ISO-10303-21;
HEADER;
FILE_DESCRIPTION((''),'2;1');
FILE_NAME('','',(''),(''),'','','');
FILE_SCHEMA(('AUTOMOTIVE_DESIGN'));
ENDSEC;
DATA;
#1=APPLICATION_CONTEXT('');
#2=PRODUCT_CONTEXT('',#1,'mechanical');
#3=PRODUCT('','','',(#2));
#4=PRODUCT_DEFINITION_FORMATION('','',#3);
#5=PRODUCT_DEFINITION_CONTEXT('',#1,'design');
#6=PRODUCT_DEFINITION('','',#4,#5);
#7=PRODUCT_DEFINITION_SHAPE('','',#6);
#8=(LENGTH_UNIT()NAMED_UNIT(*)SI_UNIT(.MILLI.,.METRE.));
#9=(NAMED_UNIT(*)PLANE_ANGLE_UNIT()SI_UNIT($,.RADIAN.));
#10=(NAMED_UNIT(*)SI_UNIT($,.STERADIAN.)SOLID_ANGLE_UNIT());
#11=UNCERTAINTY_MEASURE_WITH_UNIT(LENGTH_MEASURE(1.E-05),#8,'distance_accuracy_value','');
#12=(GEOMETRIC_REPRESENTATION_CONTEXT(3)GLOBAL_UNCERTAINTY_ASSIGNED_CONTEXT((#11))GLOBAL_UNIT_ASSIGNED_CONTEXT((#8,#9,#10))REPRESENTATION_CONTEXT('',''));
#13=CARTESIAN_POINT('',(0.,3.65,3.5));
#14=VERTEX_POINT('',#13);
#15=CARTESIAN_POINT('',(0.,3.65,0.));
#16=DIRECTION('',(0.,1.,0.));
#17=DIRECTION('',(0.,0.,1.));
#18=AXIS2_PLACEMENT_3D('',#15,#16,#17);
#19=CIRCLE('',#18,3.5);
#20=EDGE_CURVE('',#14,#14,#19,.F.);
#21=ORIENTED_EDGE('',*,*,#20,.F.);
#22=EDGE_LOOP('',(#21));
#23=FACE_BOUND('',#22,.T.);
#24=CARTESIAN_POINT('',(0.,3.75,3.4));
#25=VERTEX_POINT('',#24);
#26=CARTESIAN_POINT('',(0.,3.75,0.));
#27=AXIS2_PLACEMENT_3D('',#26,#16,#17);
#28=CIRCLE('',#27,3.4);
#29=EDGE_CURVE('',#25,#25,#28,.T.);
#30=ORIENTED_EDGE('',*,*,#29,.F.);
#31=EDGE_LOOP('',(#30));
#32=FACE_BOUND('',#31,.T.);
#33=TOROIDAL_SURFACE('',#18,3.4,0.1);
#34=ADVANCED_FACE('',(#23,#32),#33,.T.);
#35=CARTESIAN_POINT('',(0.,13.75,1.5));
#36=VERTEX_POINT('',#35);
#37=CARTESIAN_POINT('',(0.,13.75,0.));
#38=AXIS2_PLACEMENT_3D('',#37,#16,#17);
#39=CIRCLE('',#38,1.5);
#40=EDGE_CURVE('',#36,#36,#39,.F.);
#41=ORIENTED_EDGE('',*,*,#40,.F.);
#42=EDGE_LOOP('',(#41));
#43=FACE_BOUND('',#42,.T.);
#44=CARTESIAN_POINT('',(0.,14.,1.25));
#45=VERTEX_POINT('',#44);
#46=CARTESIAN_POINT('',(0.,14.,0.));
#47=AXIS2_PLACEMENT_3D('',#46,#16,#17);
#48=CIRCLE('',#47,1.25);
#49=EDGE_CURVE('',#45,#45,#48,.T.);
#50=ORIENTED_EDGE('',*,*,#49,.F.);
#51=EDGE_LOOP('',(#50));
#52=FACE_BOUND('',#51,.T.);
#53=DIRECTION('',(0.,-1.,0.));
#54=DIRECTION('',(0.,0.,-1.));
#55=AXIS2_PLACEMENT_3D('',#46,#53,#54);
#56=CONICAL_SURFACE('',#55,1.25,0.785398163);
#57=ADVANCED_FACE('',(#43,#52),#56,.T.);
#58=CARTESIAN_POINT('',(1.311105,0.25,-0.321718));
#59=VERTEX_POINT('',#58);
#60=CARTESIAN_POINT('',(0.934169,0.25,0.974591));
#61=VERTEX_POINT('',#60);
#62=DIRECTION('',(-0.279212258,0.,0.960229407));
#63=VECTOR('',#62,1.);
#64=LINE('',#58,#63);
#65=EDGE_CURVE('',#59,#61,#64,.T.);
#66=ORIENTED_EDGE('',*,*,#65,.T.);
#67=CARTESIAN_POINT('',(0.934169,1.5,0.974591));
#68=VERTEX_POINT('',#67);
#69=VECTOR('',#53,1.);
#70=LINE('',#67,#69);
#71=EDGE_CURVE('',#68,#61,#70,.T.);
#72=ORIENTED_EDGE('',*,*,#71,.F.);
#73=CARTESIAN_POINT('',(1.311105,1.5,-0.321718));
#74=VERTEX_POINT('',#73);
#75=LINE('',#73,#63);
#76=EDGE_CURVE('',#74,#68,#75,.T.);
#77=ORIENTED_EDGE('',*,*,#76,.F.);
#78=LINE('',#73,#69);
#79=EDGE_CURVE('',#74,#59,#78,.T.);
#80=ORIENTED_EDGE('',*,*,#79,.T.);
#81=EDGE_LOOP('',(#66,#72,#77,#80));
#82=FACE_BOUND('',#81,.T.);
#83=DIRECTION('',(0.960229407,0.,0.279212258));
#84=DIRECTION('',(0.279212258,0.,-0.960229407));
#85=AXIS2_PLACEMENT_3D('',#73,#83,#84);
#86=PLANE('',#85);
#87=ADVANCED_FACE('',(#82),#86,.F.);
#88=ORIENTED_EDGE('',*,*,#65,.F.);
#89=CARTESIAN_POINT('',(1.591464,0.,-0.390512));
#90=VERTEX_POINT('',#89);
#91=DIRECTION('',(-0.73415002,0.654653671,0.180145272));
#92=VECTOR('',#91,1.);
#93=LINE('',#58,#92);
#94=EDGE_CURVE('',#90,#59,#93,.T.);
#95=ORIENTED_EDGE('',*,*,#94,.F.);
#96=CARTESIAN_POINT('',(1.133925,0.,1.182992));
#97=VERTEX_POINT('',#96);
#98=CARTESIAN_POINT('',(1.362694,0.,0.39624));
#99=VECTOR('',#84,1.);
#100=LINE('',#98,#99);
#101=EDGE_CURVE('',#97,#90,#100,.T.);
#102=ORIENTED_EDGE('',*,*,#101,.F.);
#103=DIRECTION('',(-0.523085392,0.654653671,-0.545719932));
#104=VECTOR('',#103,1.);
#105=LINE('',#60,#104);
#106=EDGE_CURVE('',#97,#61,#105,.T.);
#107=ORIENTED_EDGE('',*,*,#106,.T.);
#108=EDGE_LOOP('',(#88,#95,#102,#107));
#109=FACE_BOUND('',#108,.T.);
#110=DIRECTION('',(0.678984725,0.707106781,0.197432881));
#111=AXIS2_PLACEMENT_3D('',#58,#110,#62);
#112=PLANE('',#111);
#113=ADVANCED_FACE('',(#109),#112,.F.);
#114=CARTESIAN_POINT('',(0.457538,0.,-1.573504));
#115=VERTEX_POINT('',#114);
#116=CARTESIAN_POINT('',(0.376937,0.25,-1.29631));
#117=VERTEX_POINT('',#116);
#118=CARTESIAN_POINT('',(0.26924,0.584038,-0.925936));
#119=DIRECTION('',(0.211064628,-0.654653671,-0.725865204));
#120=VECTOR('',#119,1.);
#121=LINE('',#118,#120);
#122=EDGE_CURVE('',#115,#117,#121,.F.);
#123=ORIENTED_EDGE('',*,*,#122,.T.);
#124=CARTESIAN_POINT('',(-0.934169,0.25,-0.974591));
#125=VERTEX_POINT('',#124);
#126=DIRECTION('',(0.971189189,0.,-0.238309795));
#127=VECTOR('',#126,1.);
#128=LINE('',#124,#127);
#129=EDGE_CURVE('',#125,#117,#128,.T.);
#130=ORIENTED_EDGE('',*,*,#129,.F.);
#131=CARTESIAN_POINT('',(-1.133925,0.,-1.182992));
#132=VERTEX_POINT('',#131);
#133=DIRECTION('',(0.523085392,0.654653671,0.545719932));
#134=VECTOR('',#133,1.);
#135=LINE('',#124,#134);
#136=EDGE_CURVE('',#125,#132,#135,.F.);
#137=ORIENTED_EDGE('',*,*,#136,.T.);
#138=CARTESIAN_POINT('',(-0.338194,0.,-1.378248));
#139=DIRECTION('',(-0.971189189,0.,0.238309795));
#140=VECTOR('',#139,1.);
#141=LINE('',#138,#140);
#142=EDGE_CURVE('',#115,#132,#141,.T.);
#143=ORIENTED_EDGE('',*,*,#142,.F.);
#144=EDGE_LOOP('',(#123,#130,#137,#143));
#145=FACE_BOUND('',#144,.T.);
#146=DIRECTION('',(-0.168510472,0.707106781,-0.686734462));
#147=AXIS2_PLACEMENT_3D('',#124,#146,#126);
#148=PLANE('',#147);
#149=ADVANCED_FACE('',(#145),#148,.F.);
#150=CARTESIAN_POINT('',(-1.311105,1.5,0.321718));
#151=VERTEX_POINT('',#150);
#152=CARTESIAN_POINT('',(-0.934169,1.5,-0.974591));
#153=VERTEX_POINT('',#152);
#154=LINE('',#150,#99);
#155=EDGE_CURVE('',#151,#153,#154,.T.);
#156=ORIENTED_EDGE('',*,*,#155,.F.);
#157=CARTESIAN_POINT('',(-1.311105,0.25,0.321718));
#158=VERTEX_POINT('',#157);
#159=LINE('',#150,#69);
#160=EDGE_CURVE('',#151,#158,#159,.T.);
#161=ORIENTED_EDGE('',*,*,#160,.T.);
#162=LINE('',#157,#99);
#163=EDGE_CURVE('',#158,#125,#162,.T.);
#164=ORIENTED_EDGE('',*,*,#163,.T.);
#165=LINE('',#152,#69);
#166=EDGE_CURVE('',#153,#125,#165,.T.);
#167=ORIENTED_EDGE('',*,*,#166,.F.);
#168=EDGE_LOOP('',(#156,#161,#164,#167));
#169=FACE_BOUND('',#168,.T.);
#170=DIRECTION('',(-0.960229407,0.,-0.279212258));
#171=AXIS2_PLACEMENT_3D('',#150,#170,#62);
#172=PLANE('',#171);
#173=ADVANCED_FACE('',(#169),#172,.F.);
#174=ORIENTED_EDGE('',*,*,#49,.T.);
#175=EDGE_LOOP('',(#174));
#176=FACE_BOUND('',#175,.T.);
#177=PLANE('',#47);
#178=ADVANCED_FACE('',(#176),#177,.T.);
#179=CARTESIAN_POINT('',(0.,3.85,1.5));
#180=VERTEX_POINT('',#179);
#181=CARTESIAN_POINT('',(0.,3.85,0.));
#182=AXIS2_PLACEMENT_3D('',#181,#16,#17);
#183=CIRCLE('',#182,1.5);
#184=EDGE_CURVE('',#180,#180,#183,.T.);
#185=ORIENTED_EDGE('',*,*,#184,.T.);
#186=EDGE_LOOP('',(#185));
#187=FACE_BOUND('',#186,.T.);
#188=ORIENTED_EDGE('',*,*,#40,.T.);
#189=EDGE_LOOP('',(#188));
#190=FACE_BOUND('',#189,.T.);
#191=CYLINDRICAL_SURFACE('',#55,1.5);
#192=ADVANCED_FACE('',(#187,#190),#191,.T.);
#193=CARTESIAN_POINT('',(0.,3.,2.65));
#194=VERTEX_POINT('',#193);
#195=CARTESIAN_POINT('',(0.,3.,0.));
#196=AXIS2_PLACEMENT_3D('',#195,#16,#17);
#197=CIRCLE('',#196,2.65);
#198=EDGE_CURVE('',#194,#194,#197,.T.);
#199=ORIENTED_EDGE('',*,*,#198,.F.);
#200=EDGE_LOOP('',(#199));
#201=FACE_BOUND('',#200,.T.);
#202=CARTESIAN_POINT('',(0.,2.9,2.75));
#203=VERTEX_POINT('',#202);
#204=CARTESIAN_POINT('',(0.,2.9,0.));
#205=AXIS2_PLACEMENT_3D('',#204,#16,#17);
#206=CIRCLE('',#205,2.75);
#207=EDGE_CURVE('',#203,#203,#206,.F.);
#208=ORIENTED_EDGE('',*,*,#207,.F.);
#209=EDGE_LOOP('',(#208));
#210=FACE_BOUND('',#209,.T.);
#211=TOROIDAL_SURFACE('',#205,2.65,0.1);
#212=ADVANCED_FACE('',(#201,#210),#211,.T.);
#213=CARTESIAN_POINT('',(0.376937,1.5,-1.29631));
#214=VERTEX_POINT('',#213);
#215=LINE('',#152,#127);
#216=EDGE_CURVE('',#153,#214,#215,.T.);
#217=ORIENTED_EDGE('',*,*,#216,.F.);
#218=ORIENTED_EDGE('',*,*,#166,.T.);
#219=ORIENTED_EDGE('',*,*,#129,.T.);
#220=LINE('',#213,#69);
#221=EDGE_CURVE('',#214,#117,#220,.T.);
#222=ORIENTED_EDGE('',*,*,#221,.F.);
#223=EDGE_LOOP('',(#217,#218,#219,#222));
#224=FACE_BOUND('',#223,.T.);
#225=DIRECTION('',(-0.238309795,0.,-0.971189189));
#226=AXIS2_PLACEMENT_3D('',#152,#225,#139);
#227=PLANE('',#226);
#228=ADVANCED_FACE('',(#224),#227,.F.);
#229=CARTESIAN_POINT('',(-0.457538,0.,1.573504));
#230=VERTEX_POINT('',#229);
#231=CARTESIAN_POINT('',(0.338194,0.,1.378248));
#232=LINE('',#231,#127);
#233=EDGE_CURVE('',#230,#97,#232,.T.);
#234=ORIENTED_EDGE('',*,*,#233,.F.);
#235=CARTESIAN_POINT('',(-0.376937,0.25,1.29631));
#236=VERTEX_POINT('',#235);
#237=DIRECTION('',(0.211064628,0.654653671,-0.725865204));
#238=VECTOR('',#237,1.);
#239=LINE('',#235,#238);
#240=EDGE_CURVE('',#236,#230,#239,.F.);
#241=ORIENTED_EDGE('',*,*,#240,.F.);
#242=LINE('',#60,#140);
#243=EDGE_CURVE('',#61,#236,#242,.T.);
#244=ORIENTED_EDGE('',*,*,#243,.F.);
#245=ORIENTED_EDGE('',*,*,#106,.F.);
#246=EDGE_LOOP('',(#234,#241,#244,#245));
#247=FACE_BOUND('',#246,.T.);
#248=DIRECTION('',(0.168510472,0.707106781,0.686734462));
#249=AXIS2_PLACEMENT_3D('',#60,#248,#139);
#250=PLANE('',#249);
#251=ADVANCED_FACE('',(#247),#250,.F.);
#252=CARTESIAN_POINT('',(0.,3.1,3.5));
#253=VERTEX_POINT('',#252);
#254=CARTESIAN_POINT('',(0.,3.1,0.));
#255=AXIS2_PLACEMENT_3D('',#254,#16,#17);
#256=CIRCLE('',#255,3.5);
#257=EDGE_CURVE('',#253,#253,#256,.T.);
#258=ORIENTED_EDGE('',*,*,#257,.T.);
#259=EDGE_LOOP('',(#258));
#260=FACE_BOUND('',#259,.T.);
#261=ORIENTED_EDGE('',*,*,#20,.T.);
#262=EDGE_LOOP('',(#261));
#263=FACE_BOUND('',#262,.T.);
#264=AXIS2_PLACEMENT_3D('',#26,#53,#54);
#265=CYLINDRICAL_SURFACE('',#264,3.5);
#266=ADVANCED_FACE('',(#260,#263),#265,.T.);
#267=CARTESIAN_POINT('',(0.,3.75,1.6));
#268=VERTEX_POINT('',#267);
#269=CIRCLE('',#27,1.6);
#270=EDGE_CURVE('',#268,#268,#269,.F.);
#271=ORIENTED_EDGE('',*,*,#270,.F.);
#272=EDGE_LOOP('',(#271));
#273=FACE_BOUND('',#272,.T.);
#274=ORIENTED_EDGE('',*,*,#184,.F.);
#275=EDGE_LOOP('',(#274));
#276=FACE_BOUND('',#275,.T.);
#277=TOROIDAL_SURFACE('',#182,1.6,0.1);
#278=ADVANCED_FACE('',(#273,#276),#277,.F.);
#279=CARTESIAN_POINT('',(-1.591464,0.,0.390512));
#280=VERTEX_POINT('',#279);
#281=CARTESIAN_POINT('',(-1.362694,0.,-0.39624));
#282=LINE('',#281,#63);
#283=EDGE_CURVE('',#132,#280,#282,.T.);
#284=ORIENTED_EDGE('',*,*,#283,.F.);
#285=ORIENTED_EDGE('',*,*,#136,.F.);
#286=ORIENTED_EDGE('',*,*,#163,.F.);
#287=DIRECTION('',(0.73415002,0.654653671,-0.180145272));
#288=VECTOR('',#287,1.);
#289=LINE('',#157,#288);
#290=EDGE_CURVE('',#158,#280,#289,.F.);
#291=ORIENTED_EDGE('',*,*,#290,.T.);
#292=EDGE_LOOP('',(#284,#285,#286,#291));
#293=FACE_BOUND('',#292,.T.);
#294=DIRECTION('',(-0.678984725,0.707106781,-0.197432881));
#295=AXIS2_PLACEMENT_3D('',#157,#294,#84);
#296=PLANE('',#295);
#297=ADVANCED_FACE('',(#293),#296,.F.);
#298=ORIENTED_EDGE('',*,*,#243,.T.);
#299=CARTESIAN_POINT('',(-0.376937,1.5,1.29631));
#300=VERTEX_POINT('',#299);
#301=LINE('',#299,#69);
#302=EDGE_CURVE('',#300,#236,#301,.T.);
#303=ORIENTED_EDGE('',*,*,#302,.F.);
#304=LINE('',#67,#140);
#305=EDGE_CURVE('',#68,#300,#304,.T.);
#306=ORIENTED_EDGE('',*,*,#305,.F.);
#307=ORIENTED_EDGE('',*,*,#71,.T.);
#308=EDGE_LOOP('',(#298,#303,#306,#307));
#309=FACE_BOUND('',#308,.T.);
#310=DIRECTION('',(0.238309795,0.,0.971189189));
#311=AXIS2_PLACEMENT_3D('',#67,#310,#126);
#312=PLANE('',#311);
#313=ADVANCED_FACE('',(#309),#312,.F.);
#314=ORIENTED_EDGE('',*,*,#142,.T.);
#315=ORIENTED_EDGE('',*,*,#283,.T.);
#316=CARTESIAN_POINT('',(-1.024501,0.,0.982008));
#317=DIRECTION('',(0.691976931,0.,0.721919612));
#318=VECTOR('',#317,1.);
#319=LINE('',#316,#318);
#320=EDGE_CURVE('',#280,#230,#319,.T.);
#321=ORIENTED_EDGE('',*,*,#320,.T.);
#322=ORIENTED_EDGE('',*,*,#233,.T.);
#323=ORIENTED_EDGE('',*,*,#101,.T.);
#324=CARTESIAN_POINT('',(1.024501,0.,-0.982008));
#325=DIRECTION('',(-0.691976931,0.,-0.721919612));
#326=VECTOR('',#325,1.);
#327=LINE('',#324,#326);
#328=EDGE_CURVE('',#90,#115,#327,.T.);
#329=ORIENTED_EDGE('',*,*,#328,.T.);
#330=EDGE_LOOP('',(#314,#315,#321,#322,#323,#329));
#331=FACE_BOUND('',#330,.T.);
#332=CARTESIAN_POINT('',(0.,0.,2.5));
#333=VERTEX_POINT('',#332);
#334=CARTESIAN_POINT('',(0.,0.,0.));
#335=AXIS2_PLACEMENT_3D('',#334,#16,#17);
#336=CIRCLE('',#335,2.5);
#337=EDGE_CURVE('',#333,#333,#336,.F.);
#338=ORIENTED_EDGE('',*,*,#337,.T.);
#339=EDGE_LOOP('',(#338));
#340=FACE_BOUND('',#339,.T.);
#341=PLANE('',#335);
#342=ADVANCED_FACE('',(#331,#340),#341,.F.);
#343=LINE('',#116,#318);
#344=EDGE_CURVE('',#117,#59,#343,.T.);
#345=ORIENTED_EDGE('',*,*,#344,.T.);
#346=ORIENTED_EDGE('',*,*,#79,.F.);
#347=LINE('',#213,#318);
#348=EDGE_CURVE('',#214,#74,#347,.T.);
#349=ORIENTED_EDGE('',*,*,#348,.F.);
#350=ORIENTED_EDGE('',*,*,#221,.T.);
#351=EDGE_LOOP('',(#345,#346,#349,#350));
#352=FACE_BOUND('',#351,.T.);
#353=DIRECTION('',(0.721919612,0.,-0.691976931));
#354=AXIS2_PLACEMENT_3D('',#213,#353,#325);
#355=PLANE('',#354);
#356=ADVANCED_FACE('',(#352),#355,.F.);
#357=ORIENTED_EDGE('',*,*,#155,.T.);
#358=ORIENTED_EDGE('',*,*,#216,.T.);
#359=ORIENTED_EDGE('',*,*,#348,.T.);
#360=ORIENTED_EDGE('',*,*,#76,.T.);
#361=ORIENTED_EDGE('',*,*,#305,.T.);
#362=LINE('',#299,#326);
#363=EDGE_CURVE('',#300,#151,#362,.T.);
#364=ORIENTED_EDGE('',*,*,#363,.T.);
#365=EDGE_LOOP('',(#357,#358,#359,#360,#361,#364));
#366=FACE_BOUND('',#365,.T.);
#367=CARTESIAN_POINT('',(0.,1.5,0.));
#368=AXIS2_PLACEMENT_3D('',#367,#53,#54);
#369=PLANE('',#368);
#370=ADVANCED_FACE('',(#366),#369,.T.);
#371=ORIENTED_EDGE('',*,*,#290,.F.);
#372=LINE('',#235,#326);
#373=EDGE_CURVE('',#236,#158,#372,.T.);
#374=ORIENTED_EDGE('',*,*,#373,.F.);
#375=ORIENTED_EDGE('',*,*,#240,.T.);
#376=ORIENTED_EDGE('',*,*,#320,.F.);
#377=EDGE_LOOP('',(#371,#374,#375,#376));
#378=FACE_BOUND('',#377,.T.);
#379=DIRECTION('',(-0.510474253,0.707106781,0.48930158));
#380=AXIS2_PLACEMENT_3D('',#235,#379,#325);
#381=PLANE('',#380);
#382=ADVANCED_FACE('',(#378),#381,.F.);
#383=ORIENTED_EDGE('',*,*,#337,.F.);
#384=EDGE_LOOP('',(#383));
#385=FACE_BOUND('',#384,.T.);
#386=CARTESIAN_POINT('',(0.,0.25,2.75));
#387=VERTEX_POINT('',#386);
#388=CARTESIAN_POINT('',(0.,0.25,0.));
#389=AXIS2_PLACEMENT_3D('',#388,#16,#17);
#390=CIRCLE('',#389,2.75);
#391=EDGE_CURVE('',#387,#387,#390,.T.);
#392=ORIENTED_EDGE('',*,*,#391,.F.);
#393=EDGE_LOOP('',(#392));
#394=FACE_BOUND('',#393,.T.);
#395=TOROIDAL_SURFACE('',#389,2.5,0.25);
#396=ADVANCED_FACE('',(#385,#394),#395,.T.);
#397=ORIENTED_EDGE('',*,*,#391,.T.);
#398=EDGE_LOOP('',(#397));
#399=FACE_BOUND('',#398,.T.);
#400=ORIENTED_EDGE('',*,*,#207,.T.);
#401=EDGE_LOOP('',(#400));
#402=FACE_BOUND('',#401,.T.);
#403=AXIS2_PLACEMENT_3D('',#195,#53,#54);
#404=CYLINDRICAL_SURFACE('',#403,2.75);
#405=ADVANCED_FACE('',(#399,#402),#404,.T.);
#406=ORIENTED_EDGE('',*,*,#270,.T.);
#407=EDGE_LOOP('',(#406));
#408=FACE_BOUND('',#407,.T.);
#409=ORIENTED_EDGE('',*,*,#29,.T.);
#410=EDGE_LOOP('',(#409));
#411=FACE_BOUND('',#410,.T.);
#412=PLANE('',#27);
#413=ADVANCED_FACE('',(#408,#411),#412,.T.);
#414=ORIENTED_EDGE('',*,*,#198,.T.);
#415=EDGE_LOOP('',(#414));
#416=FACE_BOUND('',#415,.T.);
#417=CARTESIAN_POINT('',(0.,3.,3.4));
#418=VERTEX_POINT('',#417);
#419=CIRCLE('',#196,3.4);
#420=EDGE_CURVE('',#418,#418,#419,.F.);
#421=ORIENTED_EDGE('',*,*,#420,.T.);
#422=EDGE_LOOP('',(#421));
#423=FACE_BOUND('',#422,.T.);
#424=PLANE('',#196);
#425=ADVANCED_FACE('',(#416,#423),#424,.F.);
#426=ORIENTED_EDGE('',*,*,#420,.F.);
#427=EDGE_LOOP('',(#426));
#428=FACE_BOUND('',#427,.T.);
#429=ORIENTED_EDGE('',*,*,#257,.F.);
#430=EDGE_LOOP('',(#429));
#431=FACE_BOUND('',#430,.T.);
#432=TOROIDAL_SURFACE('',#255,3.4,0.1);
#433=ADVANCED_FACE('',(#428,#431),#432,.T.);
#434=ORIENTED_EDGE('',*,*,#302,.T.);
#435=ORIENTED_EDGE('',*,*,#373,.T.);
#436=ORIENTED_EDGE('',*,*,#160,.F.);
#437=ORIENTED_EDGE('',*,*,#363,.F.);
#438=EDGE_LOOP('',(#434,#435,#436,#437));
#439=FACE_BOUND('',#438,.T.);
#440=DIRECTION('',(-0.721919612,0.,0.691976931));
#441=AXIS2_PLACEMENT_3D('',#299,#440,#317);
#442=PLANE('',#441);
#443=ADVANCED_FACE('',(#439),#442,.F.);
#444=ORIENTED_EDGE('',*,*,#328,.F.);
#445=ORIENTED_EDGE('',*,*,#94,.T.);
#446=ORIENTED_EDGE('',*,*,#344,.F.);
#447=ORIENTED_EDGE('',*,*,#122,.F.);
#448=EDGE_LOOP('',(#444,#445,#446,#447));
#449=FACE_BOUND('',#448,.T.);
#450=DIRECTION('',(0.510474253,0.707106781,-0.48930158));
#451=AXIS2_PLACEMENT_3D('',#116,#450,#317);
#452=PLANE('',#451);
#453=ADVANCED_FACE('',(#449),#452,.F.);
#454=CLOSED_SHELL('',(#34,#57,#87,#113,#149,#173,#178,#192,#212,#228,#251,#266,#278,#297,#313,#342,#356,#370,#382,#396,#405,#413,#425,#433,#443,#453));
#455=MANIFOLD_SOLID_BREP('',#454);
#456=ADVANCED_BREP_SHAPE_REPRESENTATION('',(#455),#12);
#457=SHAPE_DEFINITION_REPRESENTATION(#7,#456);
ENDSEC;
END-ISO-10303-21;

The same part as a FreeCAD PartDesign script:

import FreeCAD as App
import Part
import Sketcher
from FreeCAD import Vector


def edges_at(feature, points):
    """Names of the edges that pass closest to the given points."""
    edges = feature.Shape.Edges
    near = lambda p: min(range(len(edges)), key=lambda i: edges[i].distToShape(Part.Vertex(*p))[0])
    return sorted({f"Edge{near(p) + 1}" for p in points})


def add_polygon(sketch, points):
    """Adds a closed chain of lines whose ends are joined by coincident constraints."""
    first, n = sketch.GeometryCount, len(points)
    for a, b in zip(points, points[1:] + points[:1]):
        sketch.addGeometry(Part.LineSegment(App.Vector(*a, 0), App.Vector(*b, 0)), False)
    for i in range(n):
        sketch.addConstraint(Sketcher.Constraint("Coincident", first + i, 2, first + (i + 1) % n, 1))

doc = App.newDocument("Part")
body = doc.addObject("PartDesign::Body", "Body")

# Sketch on XZ plane
sketch1 = body.newObject("Sketcher::SketchObject", "Sketch")
sketch1.AttachmentSupport = (doc.getObject("XZ_Plane"), [""])
sketch1.MapMode = "FlatFace"
sketch1.addGeometry(Part.Circle(Vector(0, 0, 0), Vector(0, 0, 1), 2.8), False)
sketch1.addConstraint(Sketcher.Constraint("Coincident", 0, 3, -1, 1))
sketch1.addConstraint(Sketcher.Constraint("Diameter", 0, 5.5))
pad1 = body.newObject("PartDesign::Pad", "Pad")
pad1.Profile = sketch1
pad1.Length = 3
pad1.Reversed = True

# Sketch on XZ plane
sketch2 = body.newObject("Sketcher::SketchObject", "Sketch001")
sketch2.AttachmentSupport = (doc.getObject("XZ_Plane"), [""])
sketch2.MapMode = "FlatFace"
sketch2.AttachmentOffset = App.Placement(Vector(0, 0, -3), App.Rotation())
sketch2.addGeometry(Part.Circle(Vector(0, 0, 0), Vector(0, 0, 1), 1.5), False)
sketch2.addConstraint(Sketcher.Constraint("Coincident", 0, 3, -1, 1))
sketch2.addConstraint(Sketcher.Constraint("Diameter", 0, 3.0))
pad2 = body.newObject("PartDesign::Pad", "Pad001")
pad2.Profile = sketch2
pad2.Length = 11
pad2.Reversed = True

# Sketch on XZ plane
sketch3 = body.newObject("Sketcher::SketchObject", "Sketch002")
sketch3.AttachmentSupport = (doc.getObject("XZ_Plane"), [""])
sketch3.MapMode = "FlatFace"
add_polygon(sketch3, [(0.9, 1), (-0.4, 1.3), (-1.3, 0.3), (-0.9, -1), (0.4, -1.3), (1.3, -0.3)])  # lines 0-5
sketch3.addConstraint(Sketcher.Constraint("Symmetric", 0, 2, 3, 2, -1, 1))
sketch3.addConstraint(Sketcher.Constraint("Symmetric", 1, 2, 4, 2, -1, 1))
sketch3.addConstraint(Sketcher.Constraint("Symmetric", 2, 2, 5, 2, -1, 1))
sketch3.addConstraint(Sketcher.Constraint("Equal", 0, 1))
sketch3.addConstraint(Sketcher.Constraint("Equal", 1, 2))
sketch3.addConstraint(Sketcher.Constraint("Distance", 0, 1.35))
sketch3.addConstraint(Sketcher.Constraint("DistanceY", 2, 2, 0, 2, 2.270901))
sketch3.addConstraint(Sketcher.Constraint("DistanceY", -1, 1, 0, 2, 1.29631))
sketch3.addConstraint(Sketcher.Constraint("DistanceY", -1, 1, 1, 2, 0.321718))
pocket1 = body.newObject("PartDesign::Pocket", "Pocket")
pocket1.Profile = sketch3
pocket1.Length = 1.5
doc.recompute()

chamfer = body.newObject("PartDesign::Chamfer", "Chamfer")
chamfer.Base = (pocket1, edges_at(pocket1, [
    (1.123, 0, 0.326),
    (0.279, 0, 1.135),
    (-0.844, 0, 0.809),
    (-1.123, 0, -0.326),
    (-0.279, 0, -1.135),
    (0.844, 0, -0.809),
]))
chamfer.Size = 0.25
doc.recompute()

fillet = body.newObject("PartDesign::Fillet", "Fillet")
fillet.Base = (chamfer, edges_at(chamfer, [(0, 0, -2.75)]))
fillet.Radius = 0.25
doc.recompute()

chamfer2 = body.newObject("PartDesign::Chamfer", "Chamfer001")
chamfer2.Base = (fillet, edges_at(fillet, [(0, 14, -1.5)]))
chamfer2.Size = 0.25
doc.recompute()

fillet2 = body.newObject("PartDesign::Fillet", "Fillet001")
fillet2.Base = (chamfer2, edges_at(chamfer2, [(0, 3, -2.75)]))
fillet2.Radius = 0.1

# Sketch on XZ plane
sketch4 = body.newObject("Sketcher::SketchObject", "Sketch003")
sketch4.AttachmentSupport = (doc.getObject("XZ_Plane"), [""])
sketch4.MapMode = "FlatFace"
sketch4.AttachmentOffset = App.Placement(Vector(0, 0, -3), App.Rotation())
sketch4.addGeometry(Part.Circle(Vector(0, 0, 0), Vector(0, 0, 1), 3.5), False)
sketch4.addGeometry(Part.Circle(Vector(0, 0, 0), Vector(0, 0, 1), 1.5), False)
sketch4.addConstraint(Sketcher.Constraint("Coincident", 0, 3, -1, 1))
sketch4.addConstraint(Sketcher.Constraint("Coincident", 1, 3, -1, 1))
sketch4.addConstraint(Sketcher.Constraint("Diameter", 0, 7.0))
sketch4.addConstraint(Sketcher.Constraint("Diameter", 1, 3.0))
pad3 = body.newObject("PartDesign::Pad", "Pad002")
pad3.Profile = sketch4
pad3.Length = 0.75
pad3.Reversed = True
doc.recompute()

fillet3 = body.newObject("PartDesign::Fillet", "Fillet002")
fillet3.Base = (pad3, edges_at(pad3, [(0, 3.75, -3.5), (0, 3, -3.5), (0, 3.75, -1.5)]))
fillet3.Radius = 0.1

doc.recompute()
